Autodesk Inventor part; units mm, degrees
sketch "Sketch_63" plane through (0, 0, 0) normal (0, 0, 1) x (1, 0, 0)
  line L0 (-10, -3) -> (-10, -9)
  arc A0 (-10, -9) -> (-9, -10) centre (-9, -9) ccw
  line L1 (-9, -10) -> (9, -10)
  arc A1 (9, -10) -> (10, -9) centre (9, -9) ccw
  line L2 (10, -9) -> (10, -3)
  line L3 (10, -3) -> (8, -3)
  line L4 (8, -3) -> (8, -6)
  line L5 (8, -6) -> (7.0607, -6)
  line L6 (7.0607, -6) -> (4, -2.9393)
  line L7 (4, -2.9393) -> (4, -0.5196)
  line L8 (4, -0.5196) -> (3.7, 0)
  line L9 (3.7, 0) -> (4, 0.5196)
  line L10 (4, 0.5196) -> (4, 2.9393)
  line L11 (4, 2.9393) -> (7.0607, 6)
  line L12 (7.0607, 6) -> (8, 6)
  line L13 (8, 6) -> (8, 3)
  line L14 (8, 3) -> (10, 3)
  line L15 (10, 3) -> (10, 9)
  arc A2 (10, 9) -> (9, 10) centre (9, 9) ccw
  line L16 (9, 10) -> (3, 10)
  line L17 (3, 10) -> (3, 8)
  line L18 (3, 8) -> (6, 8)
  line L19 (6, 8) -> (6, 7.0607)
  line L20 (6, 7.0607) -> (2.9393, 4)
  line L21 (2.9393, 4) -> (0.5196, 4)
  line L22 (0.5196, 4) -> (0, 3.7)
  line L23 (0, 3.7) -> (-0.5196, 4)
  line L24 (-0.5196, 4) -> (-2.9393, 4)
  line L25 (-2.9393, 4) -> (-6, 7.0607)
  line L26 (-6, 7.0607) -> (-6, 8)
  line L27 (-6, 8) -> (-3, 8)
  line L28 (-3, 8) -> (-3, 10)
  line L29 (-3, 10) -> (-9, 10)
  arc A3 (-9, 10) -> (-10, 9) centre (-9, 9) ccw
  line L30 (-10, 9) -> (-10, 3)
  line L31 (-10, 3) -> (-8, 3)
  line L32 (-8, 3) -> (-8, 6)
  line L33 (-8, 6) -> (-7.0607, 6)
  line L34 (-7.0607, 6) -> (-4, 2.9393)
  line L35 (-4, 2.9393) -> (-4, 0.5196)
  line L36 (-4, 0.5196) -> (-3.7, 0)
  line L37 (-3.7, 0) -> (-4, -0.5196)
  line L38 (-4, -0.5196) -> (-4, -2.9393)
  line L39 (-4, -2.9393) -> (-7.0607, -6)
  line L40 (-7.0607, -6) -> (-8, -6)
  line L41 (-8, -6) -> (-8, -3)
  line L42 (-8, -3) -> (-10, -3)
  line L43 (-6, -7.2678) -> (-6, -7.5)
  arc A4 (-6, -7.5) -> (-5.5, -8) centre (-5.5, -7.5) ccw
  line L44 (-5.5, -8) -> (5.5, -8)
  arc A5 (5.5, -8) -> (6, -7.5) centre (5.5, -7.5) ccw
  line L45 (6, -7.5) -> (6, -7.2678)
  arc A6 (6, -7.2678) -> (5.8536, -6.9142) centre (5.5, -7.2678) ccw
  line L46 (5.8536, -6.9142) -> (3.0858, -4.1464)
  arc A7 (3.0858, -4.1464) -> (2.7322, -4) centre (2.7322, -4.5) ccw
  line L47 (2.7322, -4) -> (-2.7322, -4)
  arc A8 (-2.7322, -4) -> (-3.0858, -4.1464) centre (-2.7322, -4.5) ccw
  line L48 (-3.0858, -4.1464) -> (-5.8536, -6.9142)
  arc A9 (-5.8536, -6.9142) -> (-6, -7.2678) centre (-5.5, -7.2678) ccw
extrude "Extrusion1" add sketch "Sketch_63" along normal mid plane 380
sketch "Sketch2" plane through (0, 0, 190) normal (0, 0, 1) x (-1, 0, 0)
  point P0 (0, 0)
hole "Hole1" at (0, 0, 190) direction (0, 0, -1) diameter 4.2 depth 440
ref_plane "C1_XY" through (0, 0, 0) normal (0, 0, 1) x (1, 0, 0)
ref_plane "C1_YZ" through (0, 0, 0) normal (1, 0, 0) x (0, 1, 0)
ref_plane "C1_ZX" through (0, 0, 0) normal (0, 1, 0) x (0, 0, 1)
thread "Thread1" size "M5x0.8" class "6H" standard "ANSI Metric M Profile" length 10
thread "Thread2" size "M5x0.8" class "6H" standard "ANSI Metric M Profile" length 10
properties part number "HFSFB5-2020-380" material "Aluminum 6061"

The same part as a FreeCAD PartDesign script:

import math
import FreeCAD as App
import Part
import Sketcher

V = App.Vector
Q = App.Units.Quantity

doc = App.newDocument("Part")
body = doc.addObject("PartDesign::Body", "Body")

# Sketch on XY plane
sketch1 = body.newObject("Sketcher::SketchObject", "Sketch")
sketch1.AttachmentSupport = (doc.getObject("XY_Plane"), [""])
sketch1.MapMode = "FlatFace"
sketch1.addGeometry([
    Part.LineSegment(V(-8, -3, 0), V(-10, -3, 0)),  # 0
    Part.LineSegment(V(-10, -3, 0), V(-10, -9, 0)),  # 1
    Part.ArcOfCircle(Part.Circle(V(-9, -9, 0), V(0, 0, 1), 1), math.radians(180), math.radians(270)),  # 2
    Part.LineSegment(V(-9, -10, 0), V(9, -10, 0)),  # 3
    Part.ArcOfCircle(Part.Circle(V(9, -9, 0), V(0, 0, 1), 1), math.radians(-90), math.radians(0)),  # 4
    Part.LineSegment(V(10, -9, 0), V(10, -3, 0)),  # 5
    Part.LineSegment(V(10, -3, 0), V(8, -3, 0)),  # 6
    Part.LineSegment(V(8, -3, 0), V(8, -6, 0)),  # 7
    Part.LineSegment(V(8, -6, 0), V(7.06, -6, 0)),  # 8
    Part.LineSegment(V(7.06, -6, 0), V(4, -2.94, 0)),  # 9
    Part.LineSegment(V(4, -2.94, 0), V(4, -0.52, 0)),  # 10
    Part.LineSegment(V(4, -0.52, 0), V(3.7, 0, 0)),  # 11
    Part.LineSegment(V(3.7, 0, 0), V(4, 0.52, 0)),  # 12
    Part.LineSegment(V(4, 0.52, 0), V(4, 2.94, 0)),  # 13
    Part.LineSegment(V(4, 2.94, 0), V(7.06, 6, 0)),  # 14
    Part.LineSegment(V(7.06, 6, 0), V(8, 6, 0)),  # 15
    Part.LineSegment(V(8, 6, 0), V(8, 3, 0)),  # 16
    Part.LineSegment(V(8, 3, 0), V(10, 3, 0)),  # 17
    Part.LineSegment(V(10, 3, 0), V(10, 9, 0)),  # 18
    Part.ArcOfCircle(Part.Circle(V(9, 9, 0), V(0, 0, 1), 1), math.radians(0), math.radians(90)),  # 19
    Part.LineSegment(V(9, 10, 0), V(3, 10, 0)),  # 20
    Part.LineSegment(V(3, 10, 0), V(3, 8, 0)),  # 21
    Part.LineSegment(V(3, 8, 0), V(6, 8, 0)),  # 22
    Part.LineSegment(V(6, 8, 0), V(6, 7.06, 0)),  # 23
    Part.LineSegment(V(6, 7.06, 0), V(2.94, 4, 0)),  # 24
    Part.LineSegment(V(2.94, 4, 0), V(0.52, 4, 0)),  # 25
    Part.LineSegment(V(0.52, 4, 0), V(0, 3.7, 0)),  # 26
    Part.LineSegment(V(0, 3.7, 0), V(-0.52, 4, 0)),  # 27
    Part.LineSegment(V(-0.52, 4, 0), V(-2.94, 4, 0)),  # 28
    Part.LineSegment(V(-2.94, 4, 0), V(-6, 7.06, 0)),  # 29
    Part.LineSegment(V(-6, 7.06, 0), V(-6, 8, 0)),  # 30
    Part.LineSegment(V(-6, 8, 0), V(-3, 8, 0)),  # 31
    Part.LineSegment(V(-3, 8, 0), V(-3, 10, 0)),  # 32
    Part.LineSegment(V(-3, 10, 0), V(-9, 10, 0)),  # 33
    Part.ArcOfCircle(Part.Circle(V(-9, 9, 0), V(0, 0, 1), 1), math.radians(90), math.radians(180)),  # 34
    Part.LineSegment(V(-10, 9, 0), V(-10, 3, 0)),  # 35
    Part.LineSegment(V(-10, 3, 0), V(-8, 3, 0)),  # 36
    Part.LineSegment(V(-8, 3, 0), V(-8, 6, 0)),  # 37
    Part.LineSegment(V(-8, 6, 0), V(-7.06, 6, 0)),  # 38
    Part.LineSegment(V(-7.06, 6, 0), V(-4, 2.94, 0)),  # 39
    Part.LineSegment(V(-4, 2.94, 0), V(-4, 0.52, 0)),  # 40
    Part.LineSegment(V(-4, 0.52, 0), V(-3.7, 0, 0)),  # 41
    Part.LineSegment(V(-3.7, 0, 0), V(-4, -0.52, 0)),  # 42
    Part.LineSegment(V(-4, -0.52, 0), V(-4, -2.94, 0)),  # 43
    Part.LineSegment(V(-4, -2.94, 0), V(-7.06, -6, 0)),  # 44
    Part.LineSegment(V(-7.06, -6, 0), V(-8, -6, 0)),  # 45
    Part.LineSegment(V(-8, -6, 0), V(-8, -3, 0)),  # 46
    Part.LineSegment(V(-6, -7.5, 0), V(-6, -7.27, 0)),  # 47
    Part.ArcOfCircle(Part.Circle(V(-5.5, -7.27, 0), V(0, 0, 1), 0.5), math.radians(135), math.radians(180)),  # 48
    Part.LineSegment(V(-5.85, -6.91, 0), V(-3.09, -4.15, 0)),  # 49
    Part.ArcOfCircle(Part.Circle(V(-2.73, -4.5, 0), V(0, 0, 1), 0.5), math.radians(90), math.radians(135)),  # 50
    Part.LineSegment(V(-2.73, -4, 0), V(2.73, -4, 0)),  # 51
    Part.ArcOfCircle(Part.Circle(V(2.73, -4.5, 0), V(0, 0, 1), 0.5), math.radians(45), math.radians(90)),  # 52
    Part.LineSegment(V(3.09, -4.15, 0), V(5.85, -6.91, 0)),  # 53
    Part.ArcOfCircle(Part.Circle(V(5.5, -7.27, 0), V(0, 0, 1), 0.5), math.radians(0), math.radians(45)),  # 54
    Part.LineSegment(V(6, -7.27, 0), V(6, -7.5, 0)),  # 55
    Part.ArcOfCircle(Part.Circle(V(5.5, -7.5, 0), V(0, 0, 1), 0.5), math.radians(-90), math.radians(0)),  # 56
    Part.LineSegment(V(5.5, -8, 0), V(-5.5, -8, 0)),  # 57
    Part.ArcOfCircle(Part.Circle(V(-5.5, -7.5, 0), V(0, 0, 1), 0.5), math.radians(180), math.radians(270)),  # 58
], False)
sketch1.addConstraint([
    Sketcher.Constraint("Coincident", 0, 2, 1, 1),
    Sketcher.Constraint("Tangent", 1, 2, 2, 1),
    Sketcher.Constraint("Tangent", 2, 2, 3, 1),
    Sketcher.Constraint("Tangent", 3, 2, 4, 1),
    Sketcher.Constraint("Tangent", 4, 2, 5, 1),
    Sketcher.Constraint("Coincident", 5, 2, 6, 1),
    Sketcher.Constraint("Coincident", 6, 2, 7, 1),
    Sketcher.Constraint("Coincident", 7, 2, 8, 1),
    Sketcher.Constraint("Coincident", 8, 2, 9, 1),
    Sketcher.Constraint("Coincident", 9, 2, 10, 1),
    Sketcher.Constraint("Coincident", 10, 2, 11, 1),
    Sketcher.Constraint("Coincident", 11, 2, 12, 1),
    Sketcher.Constraint("Coincident", 12, 2, 13, 1),
    Sketcher.Constraint("Coincident", 13, 2, 14, 1),
    Sketcher.Constraint("Coincident", 14, 2, 15, 1),
    Sketcher.Constraint("Coincident", 15, 2, 16, 1),
    Sketcher.Constraint("Coincident", 16, 2, 17, 1),
    Sketcher.Constraint("Coincident", 17, 2, 18, 1),
    Sketcher.Constraint("Tangent", 18, 2, 19, 1),
    Sketcher.Constraint("Tangent", 19, 2, 20, 1),
    Sketcher.Constraint("Coincident", 20, 2, 21, 1),
    Sketcher.Constraint("Coincident", 21, 2, 22, 1),
    Sketcher.Constraint("Coincident", 22, 2, 23, 1),
    Sketcher.Constraint("Coincident", 23, 2, 24, 1),
    Sketcher.Constraint("Coincident", 24, 2, 25, 1),
    Sketcher.Constraint("Coincident", 25, 2, 26, 1),
    Sketcher.Constraint("Coincident", 26, 2, 27, 1),
    Sketcher.Constraint("Coincident", 27, 2, 28, 1),
    Sketcher.Constraint("Coincident", 28, 2, 29, 1),
    Sketcher.Constraint("Coincident", 29, 2, 30, 1),
    Sketcher.Constraint("Coincident", 30, 2, 31, 1),
    Sketcher.Constraint("Coincident", 31, 2, 32, 1),
    Sketcher.Constraint("Coincident", 32, 2, 33, 1),
    Sketcher.Constraint("Tangent", 33, 2, 34, 1),
    Sketcher.Constraint("Tangent", 34, 2, 35, 1),
    Sketcher.Constraint("Coincident", 35, 2, 36, 1),
    Sketcher.Constraint("Coincident", 36, 2, 37, 1),
    Sketcher.Constraint("Coincident", 37, 2, 38, 1),
    Sketcher.Constraint("Coincident", 38, 2, 39, 1),
    Sketcher.Constraint("Coincident", 39, 2, 40, 1),
    Sketcher.Constraint("Coincident", 40, 2, 41, 1),
    Sketcher.Constraint("Coincident", 41, 2, 42, 1),
    Sketcher.Constraint("Coincident", 42, 2, 43, 1),
    Sketcher.Constraint("Coincident", 43, 2, 44, 1),
    Sketcher.Constraint("Coincident", 44, 2, 45, 1),
    Sketcher.Constraint("Coincident", 45, 2, 46, 1),
    Sketcher.Constraint("Coincident", 46, 2, 0, 1),
    Sketcher.Constraint("Tangent", 47, 2, 48, 2),
    Sketcher.Constraint("Tangent", 48, 1, 49, 1),
    Sketcher.Constraint("Tangent", 49, 2, 50, 2),
    Sketcher.Constraint("Tangent", 50, 1, 51, 1),
    Sketcher.Constraint("Tangent", 51, 2, 52, 2),
    Sketcher.Constraint("Tangent", 52, 1, 53, 1),
    Sketcher.Constraint("Tangent", 53, 2, 54, 2),
    Sketcher.Constraint("Tangent", 54, 1, 55, 1),
    Sketcher.Constraint("Tangent", 55, 2, 56, 2),
    Sketcher.Constraint("Tangent", 56, 1, 57, 1),
    Sketcher.Constraint("Tangent", 57, 2, 58, 2),
    Sketcher.Constraint("Tangent", 58, 1, 47, 1),
    Sketcher.Constraint("Horizontal", 0),
    Sketcher.Constraint("Vertical", 1),
    Sketcher.Constraint("Horizontal", 3),
    Sketcher.Constraint("Vertical", 5),
    Sketcher.Constraint("Horizontal", 6),
    Sketcher.Constraint("Vertical", 7),
    Sketcher.Constraint("Horizontal", 8),
    Sketcher.Constraint("Vertical", 10),
    Sketcher.Constraint("Vertical", 13),
    Sketcher.Constraint("Horizontal", 15),
    Sketcher.Constraint("Vertical", 16),
    Sketcher.Constraint("Horizontal", 17),
    Sketcher.Constraint("Vertical", 18),
    Sketcher.Constraint("Horizontal", 20),
    Sketcher.Constraint("Vertical", 21),
    Sketcher.Constraint("Horizontal", 22),
    Sketcher.Constraint("Vertical", 23),
    Sketcher.Constraint("Horizontal", 25),
    Sketcher.Constraint("Horizontal", 28),
    Sketcher.Constraint("Vertical", 30),
    Sketcher.Constraint("Horizontal", 31),
    Sketcher.Constraint("Vertical", 32),
    Sketcher.Constraint("Horizontal", 33),
    Sketcher.Constraint("Vertical", 35),
    Sketcher.Constraint("Horizontal", 36),
    Sketcher.Constraint("Vertical", 37),
    Sketcher.Constraint("Horizontal", 38),
    Sketcher.Constraint("Vertical", 40),
    Sketcher.Constraint("Vertical", 43),
    Sketcher.Constraint("Horizontal", 45),
    Sketcher.Constraint("Vertical", 46),
    Sketcher.Constraint("Vertical", 47),
    Sketcher.Constraint("Horizontal", 51),
    Sketcher.Constraint("Vertical", 55),
    Sketcher.Constraint("Horizontal", 57),
    Sketcher.Constraint("Equal", 2, 4),
    Sketcher.Constraint("Equal", 4, 19),
    Sketcher.Constraint("Equal", 19, 34),
    Sketcher.Constraint("Equal", 48, 50),
    Sketcher.Constraint("Equal", 50, 52),
    Sketcher.Constraint("Equal", 52, 54),
    Sketcher.Constraint("Equal", 54, 56),
    Sketcher.Constraint("Equal", 56, 58),
    Sketcher.Constraint("Symmetric", 2, 3, 19, 3, -1, 1),
    Sketcher.Constraint("Symmetric", 4, 3, 34, 3, -1, 1),
    Sketcher.Constraint("Symmetric", 6, 2, 36, 2, -1, 1),
    Sketcher.Constraint("Symmetric", 8, 2, 38, 2, -1, 1),
    Sketcher.Constraint("Symmetric", 9, 2, 39, 2, -1, 1),
    Sketcher.Constraint("Symmetric", 11, 2, 41, 2, -1, 1),
    Sketcher.Constraint("Symmetric", 12, 2, 42, 2, -1, 1),
    Sketcher.Constraint("Symmetric", 14, 2, 44, 2, -1, 1),
    Sketcher.Constraint("Symmetric", 16, 2, 46, 2, -1, 1),
    Sketcher.Constraint("Symmetric", 48, 3, 54, 3, -2),
    Sketcher.Constraint("Symmetric", 0, 2, 5, 2, -2),
    Sketcher.Constraint("Symmetric", 25, 2, 27, 2, -2),
    Sketcher.Constraint("Symmetric", 23, 2, 29, 2, -2),
    Sketcher.Constraint("Symmetric", 21, 2, 31, 2, -2),
    Sketcher.Constraint("Symmetric", 15, 2, 37, 2, -2),
    Sketcher.Constraint("Symmetric", 13, 2, 39, 2, -2),
    Sketcher.Constraint("PointOnObject", 11, 2, -1),
    Sketcher.Constraint("PointOnObject", 26, 2, -2),
    Sketcher.Constraint("Perpendicular", 9, 14),
    Sketcher.Constraint("Parallel", 14, 24),
    Sketcher.Constraint("Perpendicular", 11, 26),
    Sketcher.Constraint("Perpendicular", 12, 27),
    Sketcher.Constraint("Perpendicular", 24, 29),
    Sketcher.Constraint("Perpendicular", 26, 41),
    Sketcher.Constraint("Perpendicular", 39, 44),
    Sketcher.Constraint("Parallel", 44, 49),
    Sketcher.Constraint("Perpendicular", 49, 53),
    Sketcher.Constraint("Horizontal", 49, 2, 52, 1),
    Sketcher.Constraint("Vertical", 30, 2, 47, 2),
    Sketcher.Constraint("Equal", 33, 1),
    Sketcher.Constraint("Equal", 31, 7),
    Sketcher.Constraint("Equal", 28, 10),
    Sketcher.Constraint("Equal", 36, 21),
    Sketcher.Constraint("Equal", 45, 23),
    Sketcher.Constraint("Equal", 14, 24),
    Sketcher.Constraint("Equal", 12, 26),
    Sketcher.Constraint("Radius", 2, 1.0),
    Sketcher.Constraint("Radius", 48, 0.5),
    Sketcher.Constraint("DistanceX", 0, 2, 0, 1, 2.0),
    Sketcher.Constraint("DistanceX", 3, 1, 3, 2, 18.0),
    Sketcher.Constraint("DistanceX", 20, 2, 20, 1, 6.0),
    Sketcher.Constraint("DistanceX", 22, 1, 22, 2, 3.0),
    Sketcher.Constraint("Angle", 11, Q("120.0007 deg")),
    Sketcher.Constraint("DistanceX", -1, 1, 9, 2, 4.0),
    Sketcher.Constraint("DistanceY", 50, 1, -1, 1, 4.0),
    Sketcher.Constraint("DistanceY", 56, 1, -1, 1, 8.0),
    Sketcher.Constraint("Distance", 11, 0.6),
    Sketcher.Constraint("DistanceX", 8, 2, 8, 1, 0.9393),
    Sketcher.Constraint("DistanceX", 51, 1, 51, 2, 5.4644),
])
pad1 = body.newObject("PartDesign::Pad", "Pad")
pad1.Profile = sketch1
pad1.Length = 380
pad1.Midplane = True

# Sketch on XY plane
sketch2 = body.newObject("Sketcher::SketchObject", "Sketch001")
sketch2.AttachmentSupport = (doc.getObject("XY_Plane"), [""])
sketch2.MapMode = "FlatFace"
sketch2.AttachmentOffset = App.Placement(V(0, 0, 190), App.Rotation())
sketch2.addGeometry(Part.Circle(V(0, 0, 0), V(0, 0, 1), 2.1), False)
sketch2.addConstraint([
    Sketcher.Constraint("Coincident", 0, 3, -1, 1),
    Sketcher.Constraint("Diameter", 0, 4.2),
])
doc.recompute()
hole = body.newObject("PartDesign::Hole", "Hole")
hole.Profile = sketch2
hole.ThreadType = "None"
hole.Diameter = 4.2
hole.DepthType = "Dimension"
hole.Depth = 440
hole.DrillPoint = "Flat"

doc.recompute()
